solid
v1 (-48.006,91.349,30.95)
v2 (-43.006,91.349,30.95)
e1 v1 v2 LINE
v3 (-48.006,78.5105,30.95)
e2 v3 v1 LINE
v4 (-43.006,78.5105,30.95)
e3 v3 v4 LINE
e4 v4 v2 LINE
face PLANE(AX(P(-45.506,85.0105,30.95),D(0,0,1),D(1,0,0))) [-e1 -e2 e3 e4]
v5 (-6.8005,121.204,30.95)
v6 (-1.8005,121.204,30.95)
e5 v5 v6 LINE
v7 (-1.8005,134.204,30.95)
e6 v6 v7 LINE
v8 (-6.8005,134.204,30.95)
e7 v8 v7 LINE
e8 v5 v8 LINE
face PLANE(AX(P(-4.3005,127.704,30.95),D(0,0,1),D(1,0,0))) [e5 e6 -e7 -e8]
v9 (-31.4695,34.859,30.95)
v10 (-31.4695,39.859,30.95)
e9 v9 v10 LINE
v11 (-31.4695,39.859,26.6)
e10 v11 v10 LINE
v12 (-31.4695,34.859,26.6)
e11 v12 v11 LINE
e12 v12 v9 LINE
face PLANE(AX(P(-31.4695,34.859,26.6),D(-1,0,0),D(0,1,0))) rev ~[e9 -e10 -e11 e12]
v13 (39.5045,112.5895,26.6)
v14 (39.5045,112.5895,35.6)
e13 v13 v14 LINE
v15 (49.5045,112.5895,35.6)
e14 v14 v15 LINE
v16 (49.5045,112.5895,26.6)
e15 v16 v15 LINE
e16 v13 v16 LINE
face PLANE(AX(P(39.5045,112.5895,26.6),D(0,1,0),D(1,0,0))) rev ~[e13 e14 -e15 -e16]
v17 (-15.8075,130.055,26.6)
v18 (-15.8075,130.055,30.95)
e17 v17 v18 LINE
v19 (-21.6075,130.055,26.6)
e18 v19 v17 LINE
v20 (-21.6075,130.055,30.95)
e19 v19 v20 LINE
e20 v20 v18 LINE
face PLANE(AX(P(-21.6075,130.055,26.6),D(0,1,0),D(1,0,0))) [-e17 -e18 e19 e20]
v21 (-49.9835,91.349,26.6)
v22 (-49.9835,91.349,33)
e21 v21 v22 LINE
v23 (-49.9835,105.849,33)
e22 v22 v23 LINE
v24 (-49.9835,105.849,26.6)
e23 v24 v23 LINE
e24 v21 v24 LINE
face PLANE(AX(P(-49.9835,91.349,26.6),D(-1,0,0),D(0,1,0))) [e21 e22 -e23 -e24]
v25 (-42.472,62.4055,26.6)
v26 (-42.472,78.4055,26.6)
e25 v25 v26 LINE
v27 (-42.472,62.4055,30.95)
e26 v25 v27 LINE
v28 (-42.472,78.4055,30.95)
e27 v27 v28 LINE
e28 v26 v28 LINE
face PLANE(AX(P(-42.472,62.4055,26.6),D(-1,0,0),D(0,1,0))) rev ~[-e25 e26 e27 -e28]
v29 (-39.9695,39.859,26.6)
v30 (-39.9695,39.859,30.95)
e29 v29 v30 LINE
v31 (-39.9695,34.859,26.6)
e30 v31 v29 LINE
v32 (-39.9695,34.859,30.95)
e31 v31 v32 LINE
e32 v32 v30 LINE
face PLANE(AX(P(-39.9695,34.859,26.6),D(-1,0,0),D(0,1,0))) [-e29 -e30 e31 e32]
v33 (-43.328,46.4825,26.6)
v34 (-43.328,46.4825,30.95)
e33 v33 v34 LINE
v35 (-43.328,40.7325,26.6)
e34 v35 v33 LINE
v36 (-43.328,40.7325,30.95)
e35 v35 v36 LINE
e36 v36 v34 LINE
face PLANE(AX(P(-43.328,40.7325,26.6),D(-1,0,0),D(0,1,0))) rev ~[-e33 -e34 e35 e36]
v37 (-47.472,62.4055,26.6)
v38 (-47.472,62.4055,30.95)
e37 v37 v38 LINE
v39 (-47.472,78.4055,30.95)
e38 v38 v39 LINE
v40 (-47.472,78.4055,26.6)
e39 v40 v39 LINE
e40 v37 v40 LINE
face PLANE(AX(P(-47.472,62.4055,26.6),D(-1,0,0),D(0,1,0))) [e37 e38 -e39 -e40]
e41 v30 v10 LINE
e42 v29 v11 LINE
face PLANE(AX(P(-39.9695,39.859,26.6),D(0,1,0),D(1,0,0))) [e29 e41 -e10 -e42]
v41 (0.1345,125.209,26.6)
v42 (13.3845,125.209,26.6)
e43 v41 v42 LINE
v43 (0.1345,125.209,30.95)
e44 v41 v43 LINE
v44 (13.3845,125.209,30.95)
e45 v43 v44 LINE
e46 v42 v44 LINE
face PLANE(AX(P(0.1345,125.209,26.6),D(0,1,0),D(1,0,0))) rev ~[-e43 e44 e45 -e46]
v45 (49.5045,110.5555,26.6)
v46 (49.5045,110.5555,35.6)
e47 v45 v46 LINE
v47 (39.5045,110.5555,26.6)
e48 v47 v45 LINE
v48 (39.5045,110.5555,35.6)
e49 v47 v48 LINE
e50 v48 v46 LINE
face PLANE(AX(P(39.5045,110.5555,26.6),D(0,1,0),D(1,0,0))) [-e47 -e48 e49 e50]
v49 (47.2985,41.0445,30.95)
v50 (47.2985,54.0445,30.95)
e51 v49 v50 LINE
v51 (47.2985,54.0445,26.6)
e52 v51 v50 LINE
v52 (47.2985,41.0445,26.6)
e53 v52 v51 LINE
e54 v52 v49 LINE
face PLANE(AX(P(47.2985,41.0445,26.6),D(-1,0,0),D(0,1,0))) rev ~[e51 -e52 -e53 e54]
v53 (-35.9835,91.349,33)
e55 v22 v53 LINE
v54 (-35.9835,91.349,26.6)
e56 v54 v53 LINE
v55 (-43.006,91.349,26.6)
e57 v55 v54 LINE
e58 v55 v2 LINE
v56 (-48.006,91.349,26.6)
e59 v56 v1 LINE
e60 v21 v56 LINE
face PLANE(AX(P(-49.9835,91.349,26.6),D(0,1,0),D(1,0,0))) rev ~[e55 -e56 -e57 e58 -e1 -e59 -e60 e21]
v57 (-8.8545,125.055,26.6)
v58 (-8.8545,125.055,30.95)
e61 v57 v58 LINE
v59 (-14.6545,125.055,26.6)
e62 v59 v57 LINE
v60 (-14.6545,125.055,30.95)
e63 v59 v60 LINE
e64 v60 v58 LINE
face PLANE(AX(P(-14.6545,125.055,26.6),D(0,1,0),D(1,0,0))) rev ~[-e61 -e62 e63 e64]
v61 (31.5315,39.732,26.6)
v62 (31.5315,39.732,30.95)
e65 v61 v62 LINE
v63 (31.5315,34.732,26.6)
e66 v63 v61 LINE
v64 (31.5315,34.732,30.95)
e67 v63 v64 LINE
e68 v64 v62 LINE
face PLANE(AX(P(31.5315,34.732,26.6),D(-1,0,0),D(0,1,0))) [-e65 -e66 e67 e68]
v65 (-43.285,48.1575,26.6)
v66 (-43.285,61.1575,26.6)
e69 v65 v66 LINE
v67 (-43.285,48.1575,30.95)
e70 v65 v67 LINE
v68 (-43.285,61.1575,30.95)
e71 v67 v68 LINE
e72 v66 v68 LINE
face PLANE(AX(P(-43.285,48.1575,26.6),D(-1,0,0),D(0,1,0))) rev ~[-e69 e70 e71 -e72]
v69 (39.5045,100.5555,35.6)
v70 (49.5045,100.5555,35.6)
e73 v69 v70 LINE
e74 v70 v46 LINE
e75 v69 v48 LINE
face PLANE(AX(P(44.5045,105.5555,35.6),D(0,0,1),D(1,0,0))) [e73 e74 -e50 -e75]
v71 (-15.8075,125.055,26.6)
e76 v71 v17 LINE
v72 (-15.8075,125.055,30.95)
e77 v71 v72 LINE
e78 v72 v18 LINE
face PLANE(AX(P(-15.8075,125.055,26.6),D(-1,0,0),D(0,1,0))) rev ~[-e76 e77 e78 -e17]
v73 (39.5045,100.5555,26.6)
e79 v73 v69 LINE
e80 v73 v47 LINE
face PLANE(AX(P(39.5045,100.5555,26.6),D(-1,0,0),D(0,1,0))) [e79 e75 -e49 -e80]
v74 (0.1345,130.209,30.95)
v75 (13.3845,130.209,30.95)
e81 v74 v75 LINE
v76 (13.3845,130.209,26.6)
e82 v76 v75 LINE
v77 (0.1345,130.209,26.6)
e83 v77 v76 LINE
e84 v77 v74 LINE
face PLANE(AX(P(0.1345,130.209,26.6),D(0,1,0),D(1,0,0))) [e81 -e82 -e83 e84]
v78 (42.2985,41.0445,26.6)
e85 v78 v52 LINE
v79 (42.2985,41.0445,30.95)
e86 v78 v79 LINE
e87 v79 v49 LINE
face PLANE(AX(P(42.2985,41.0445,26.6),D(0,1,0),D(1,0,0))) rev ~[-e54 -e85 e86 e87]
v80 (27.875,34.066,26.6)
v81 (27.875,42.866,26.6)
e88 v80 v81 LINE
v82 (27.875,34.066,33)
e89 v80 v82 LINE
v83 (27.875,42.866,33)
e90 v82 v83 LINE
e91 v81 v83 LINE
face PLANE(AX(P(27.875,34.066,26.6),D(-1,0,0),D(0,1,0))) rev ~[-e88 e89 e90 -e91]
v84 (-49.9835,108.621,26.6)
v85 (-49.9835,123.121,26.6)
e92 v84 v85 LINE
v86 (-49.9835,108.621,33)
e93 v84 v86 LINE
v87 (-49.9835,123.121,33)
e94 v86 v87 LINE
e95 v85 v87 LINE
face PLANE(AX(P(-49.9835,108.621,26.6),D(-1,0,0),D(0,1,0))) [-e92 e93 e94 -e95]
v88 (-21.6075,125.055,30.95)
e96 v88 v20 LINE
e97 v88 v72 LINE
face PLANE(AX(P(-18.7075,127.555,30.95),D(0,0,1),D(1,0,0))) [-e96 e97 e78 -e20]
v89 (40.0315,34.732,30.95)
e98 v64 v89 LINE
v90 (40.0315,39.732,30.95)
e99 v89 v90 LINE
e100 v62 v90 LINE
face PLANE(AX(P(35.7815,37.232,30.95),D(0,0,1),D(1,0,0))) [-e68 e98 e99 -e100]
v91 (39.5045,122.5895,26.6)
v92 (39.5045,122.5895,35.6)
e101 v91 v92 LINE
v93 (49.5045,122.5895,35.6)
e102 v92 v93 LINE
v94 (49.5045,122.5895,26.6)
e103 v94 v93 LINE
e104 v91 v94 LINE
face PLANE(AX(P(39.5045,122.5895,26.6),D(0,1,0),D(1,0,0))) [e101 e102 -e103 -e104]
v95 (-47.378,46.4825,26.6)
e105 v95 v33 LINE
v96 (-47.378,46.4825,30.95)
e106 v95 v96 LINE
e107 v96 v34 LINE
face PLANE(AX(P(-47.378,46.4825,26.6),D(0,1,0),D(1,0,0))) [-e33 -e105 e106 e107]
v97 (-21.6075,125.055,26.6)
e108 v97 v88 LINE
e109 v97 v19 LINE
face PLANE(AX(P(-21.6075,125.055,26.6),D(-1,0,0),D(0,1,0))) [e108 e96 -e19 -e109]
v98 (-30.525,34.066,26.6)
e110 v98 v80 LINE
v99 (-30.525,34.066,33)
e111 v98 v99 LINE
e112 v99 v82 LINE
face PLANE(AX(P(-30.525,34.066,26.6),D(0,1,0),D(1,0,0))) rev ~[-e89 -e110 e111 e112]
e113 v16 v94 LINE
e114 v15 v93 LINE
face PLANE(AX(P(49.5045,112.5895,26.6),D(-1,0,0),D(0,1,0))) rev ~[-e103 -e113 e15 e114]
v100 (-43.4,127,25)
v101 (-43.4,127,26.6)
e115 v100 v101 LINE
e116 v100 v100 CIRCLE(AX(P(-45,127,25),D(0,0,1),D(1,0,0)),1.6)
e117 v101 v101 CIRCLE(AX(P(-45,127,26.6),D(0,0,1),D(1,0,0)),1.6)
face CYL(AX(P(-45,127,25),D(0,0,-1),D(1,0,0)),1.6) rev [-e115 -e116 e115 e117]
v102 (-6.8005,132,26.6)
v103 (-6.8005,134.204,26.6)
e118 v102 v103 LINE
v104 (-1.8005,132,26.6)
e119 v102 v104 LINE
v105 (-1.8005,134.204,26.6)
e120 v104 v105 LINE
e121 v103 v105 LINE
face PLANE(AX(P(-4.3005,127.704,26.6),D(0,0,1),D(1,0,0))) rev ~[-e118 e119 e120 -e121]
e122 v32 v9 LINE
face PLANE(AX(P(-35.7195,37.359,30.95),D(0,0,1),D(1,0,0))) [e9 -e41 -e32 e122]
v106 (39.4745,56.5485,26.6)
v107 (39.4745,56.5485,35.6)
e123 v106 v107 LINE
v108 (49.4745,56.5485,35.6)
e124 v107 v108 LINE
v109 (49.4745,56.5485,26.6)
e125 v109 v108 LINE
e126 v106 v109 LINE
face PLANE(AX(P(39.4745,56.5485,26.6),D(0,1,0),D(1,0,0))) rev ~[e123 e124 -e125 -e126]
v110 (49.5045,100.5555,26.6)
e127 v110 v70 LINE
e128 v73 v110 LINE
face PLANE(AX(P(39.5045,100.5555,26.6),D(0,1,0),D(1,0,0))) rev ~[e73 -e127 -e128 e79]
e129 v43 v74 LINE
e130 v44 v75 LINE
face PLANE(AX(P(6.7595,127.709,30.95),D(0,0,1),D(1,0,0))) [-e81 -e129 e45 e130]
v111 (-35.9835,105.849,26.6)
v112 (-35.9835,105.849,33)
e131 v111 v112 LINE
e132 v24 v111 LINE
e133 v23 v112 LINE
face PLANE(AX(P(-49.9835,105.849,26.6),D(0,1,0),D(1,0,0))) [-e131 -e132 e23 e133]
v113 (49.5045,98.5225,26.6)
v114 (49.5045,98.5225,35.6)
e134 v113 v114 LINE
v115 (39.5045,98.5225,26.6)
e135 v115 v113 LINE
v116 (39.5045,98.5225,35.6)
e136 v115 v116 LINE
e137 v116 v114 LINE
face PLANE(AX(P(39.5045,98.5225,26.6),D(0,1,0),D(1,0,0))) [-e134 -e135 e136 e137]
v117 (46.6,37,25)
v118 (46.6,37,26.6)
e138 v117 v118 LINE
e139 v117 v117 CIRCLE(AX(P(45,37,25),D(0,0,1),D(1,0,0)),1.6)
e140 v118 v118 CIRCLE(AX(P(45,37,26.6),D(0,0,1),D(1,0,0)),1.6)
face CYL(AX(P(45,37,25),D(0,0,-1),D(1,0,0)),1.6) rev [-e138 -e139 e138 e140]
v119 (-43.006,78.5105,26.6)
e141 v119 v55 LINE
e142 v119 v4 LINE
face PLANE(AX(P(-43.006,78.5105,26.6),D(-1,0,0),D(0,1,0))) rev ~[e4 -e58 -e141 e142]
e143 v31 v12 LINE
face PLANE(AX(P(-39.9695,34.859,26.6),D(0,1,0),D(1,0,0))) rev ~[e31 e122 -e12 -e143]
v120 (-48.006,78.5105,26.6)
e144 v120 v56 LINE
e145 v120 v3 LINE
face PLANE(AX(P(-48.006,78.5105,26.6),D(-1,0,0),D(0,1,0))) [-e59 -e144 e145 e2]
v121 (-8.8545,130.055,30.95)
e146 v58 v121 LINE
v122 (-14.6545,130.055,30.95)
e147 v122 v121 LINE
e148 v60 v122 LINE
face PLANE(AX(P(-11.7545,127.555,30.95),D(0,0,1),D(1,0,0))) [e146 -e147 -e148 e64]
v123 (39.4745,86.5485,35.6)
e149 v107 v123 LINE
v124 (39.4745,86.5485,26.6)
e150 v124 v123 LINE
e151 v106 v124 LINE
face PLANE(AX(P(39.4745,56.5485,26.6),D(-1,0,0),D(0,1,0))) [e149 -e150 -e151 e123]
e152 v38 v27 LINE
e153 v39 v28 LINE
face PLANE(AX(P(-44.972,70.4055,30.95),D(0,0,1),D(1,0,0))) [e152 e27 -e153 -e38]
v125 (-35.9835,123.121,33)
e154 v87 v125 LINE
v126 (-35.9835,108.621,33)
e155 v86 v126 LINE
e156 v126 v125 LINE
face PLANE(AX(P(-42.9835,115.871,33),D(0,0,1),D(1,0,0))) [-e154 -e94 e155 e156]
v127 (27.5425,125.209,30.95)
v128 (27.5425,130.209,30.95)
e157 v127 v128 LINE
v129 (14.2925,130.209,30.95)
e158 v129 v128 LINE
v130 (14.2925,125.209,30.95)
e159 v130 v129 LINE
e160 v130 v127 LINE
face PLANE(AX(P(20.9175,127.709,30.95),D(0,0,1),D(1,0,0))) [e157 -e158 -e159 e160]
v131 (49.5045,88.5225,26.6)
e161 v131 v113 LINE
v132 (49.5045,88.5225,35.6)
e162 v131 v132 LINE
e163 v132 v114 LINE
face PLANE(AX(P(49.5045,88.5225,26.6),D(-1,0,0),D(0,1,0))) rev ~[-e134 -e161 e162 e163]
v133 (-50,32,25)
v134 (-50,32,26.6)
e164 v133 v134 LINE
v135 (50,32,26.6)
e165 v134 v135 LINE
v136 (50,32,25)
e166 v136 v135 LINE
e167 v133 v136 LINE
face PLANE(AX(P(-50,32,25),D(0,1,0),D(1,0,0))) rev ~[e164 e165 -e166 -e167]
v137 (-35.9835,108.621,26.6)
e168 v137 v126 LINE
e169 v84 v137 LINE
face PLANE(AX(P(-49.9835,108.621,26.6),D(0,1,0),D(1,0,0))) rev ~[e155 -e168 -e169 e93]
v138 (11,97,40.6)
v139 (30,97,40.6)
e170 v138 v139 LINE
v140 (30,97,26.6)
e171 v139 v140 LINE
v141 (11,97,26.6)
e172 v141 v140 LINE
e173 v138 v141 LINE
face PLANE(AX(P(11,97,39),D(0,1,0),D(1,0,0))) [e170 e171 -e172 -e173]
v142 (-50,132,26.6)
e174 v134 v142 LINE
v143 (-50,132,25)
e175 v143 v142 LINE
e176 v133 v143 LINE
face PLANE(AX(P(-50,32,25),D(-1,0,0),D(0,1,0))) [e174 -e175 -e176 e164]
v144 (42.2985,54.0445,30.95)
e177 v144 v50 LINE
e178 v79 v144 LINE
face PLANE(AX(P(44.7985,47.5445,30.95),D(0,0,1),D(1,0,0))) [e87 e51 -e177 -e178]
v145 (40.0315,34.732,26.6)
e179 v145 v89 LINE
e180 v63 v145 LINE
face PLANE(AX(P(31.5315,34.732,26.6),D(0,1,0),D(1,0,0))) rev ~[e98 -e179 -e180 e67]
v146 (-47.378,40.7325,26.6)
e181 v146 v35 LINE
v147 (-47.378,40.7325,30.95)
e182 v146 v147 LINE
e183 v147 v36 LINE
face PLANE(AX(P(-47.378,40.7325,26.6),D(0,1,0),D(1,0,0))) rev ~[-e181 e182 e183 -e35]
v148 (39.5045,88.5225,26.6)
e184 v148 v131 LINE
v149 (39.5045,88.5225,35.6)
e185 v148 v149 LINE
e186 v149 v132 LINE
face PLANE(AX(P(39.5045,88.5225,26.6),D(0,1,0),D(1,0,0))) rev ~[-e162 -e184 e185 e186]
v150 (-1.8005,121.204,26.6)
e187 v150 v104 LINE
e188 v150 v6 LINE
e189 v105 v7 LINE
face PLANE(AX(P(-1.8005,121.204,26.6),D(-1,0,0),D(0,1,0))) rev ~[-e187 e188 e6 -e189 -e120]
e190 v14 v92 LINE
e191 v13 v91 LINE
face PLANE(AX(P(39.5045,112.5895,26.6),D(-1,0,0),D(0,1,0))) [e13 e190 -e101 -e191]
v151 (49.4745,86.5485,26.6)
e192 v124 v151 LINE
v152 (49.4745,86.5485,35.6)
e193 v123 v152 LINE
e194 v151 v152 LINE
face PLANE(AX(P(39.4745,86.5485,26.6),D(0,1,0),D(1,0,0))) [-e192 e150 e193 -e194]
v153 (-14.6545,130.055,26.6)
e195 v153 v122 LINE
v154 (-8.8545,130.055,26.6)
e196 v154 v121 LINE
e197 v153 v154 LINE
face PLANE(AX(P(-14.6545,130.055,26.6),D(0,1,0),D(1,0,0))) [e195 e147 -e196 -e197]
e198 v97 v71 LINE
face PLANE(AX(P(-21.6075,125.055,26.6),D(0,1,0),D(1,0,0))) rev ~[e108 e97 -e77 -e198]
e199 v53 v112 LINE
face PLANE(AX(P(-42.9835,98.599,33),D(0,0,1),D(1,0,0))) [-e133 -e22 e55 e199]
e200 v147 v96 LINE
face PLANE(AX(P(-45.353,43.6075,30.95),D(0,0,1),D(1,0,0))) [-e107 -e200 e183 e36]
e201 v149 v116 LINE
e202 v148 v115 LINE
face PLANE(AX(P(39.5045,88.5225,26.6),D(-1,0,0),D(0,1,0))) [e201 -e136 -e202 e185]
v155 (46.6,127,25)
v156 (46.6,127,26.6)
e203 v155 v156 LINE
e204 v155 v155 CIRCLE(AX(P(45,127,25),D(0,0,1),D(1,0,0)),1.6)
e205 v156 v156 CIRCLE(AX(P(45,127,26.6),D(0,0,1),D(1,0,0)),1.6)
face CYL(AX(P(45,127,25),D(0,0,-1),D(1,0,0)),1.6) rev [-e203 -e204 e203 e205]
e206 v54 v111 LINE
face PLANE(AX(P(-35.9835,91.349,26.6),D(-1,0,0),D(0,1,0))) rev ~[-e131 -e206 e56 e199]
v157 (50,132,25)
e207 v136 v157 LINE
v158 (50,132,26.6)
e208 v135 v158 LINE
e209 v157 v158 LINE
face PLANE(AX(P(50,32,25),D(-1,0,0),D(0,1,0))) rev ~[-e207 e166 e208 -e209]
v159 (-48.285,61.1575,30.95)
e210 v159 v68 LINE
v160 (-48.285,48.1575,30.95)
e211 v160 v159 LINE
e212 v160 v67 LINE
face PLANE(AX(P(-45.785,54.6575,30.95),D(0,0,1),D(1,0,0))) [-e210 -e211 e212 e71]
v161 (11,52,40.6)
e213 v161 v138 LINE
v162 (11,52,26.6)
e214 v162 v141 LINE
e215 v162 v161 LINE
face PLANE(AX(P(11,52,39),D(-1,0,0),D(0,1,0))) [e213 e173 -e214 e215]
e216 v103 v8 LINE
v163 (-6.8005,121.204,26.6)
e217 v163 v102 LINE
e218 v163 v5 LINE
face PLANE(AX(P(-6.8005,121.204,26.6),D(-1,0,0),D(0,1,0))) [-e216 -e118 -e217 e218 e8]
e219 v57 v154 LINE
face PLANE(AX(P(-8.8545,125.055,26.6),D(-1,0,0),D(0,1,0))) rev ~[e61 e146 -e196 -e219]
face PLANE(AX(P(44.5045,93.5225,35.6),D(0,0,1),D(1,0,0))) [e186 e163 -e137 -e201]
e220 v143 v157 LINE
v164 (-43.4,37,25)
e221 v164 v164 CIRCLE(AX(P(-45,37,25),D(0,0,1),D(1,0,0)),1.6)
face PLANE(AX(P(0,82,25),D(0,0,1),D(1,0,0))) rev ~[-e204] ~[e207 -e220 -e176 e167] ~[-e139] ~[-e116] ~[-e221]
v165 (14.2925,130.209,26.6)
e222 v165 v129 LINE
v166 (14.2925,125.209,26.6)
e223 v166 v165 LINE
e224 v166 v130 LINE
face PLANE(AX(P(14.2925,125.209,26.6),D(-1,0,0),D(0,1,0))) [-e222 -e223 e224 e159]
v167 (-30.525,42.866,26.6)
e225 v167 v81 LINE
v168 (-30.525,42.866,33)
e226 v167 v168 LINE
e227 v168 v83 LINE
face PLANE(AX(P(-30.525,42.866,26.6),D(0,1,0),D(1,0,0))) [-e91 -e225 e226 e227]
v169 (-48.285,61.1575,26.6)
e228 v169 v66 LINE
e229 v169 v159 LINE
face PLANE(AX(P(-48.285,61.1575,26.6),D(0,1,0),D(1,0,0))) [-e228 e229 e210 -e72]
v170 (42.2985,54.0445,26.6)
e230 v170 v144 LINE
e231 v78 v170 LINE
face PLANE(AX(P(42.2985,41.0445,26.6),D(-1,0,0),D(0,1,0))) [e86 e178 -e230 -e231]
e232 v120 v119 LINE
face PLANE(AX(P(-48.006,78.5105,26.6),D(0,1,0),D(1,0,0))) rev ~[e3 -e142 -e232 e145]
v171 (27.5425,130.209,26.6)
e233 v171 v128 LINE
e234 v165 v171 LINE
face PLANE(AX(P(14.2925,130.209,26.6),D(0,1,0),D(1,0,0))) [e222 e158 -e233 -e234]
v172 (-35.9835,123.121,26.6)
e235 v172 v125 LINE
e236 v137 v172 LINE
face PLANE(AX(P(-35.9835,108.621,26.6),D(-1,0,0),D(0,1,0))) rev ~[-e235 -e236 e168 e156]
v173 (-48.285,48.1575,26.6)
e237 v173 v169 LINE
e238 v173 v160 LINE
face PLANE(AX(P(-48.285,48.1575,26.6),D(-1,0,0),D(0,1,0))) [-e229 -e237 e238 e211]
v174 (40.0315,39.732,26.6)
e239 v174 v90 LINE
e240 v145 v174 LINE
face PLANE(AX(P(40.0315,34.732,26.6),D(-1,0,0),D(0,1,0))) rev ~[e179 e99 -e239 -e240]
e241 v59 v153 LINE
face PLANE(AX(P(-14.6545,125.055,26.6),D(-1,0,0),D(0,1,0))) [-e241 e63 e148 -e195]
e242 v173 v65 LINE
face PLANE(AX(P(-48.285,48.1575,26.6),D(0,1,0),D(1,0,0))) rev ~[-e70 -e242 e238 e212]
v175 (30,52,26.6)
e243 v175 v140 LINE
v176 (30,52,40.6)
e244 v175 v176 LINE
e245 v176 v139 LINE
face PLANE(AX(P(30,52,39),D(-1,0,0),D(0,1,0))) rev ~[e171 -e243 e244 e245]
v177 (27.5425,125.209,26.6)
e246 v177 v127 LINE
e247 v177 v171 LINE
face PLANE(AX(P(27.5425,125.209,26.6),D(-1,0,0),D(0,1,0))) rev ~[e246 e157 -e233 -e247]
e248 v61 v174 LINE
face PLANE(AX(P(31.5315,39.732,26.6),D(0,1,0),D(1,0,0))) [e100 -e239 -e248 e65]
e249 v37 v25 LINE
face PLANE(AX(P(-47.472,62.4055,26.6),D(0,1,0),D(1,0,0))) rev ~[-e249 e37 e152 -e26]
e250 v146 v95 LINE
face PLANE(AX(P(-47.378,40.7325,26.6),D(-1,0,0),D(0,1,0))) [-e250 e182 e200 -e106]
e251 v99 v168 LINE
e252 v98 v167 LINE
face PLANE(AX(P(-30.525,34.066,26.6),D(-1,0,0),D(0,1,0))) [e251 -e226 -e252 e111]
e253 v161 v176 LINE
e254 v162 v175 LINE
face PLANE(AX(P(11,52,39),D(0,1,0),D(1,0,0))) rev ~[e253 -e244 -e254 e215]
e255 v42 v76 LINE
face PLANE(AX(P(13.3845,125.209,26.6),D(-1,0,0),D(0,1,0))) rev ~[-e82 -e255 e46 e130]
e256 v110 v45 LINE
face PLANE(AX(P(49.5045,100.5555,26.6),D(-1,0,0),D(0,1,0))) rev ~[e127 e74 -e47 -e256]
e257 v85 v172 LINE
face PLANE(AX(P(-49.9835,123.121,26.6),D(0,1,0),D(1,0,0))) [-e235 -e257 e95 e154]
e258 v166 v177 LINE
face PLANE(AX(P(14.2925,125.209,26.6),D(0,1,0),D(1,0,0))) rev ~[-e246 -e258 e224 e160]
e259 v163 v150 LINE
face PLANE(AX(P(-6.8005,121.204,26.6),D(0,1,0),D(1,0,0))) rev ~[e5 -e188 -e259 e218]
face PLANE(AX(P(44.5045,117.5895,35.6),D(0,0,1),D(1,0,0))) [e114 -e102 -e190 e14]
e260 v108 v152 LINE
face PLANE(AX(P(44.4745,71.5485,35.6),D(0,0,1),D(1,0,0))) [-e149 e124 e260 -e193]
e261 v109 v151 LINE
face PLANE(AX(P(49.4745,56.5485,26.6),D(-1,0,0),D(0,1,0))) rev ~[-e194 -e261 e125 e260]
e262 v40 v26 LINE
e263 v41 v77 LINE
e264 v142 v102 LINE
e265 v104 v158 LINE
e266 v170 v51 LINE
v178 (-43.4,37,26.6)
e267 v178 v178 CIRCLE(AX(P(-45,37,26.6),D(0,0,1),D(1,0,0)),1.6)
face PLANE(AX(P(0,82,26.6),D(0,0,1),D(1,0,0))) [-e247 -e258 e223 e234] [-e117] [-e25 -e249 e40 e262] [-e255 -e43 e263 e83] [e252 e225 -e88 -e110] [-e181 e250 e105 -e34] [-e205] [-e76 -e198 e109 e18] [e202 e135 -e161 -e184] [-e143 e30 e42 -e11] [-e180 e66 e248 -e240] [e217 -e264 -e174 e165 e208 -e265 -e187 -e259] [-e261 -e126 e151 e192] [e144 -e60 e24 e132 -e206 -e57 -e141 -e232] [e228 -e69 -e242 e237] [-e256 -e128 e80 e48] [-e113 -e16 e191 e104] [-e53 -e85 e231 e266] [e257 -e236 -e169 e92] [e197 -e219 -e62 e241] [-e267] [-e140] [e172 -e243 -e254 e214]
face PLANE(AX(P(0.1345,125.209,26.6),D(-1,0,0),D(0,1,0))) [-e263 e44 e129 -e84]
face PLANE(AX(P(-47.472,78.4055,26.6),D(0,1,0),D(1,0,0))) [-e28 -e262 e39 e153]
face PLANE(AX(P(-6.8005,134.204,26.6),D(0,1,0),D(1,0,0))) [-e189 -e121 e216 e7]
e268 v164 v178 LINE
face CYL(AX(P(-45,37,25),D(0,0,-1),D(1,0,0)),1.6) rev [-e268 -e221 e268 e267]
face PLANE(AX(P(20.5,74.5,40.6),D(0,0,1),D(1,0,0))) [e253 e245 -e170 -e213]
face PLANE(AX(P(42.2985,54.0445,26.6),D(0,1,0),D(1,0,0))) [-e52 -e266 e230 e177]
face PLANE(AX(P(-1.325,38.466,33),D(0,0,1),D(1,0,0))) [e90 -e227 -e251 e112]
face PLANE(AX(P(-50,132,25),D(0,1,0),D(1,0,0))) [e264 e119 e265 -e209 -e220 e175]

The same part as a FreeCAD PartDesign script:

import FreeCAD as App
import Part
import Sketcher

V = App.Vector


def add_polygon(sketch, points):
    """Adds a closed chain of lines whose ends are joined by coincident constraints."""
    first, n = sketch.GeometryCount, len(points)
    for a, b in zip(points, points[1:] + points[:1]):
        sketch.addGeometry(Part.LineSegment(App.Vector(*a, 0), App.Vector(*b, 0)), False)
    for i in range(n):
        sketch.addConstraint(Sketcher.Constraint("Coincident", first + i, 2, first + (i + 1) % n, 1))

doc = App.newDocument("Part")
body = doc.addObject("PartDesign::Body", "Body")

# Sketch on XY plane
sketch1 = body.newObject("Sketcher::SketchObject", "Sketch")
sketch1.AttachmentSupport = (doc.getObject("XY_Plane"), [""])
sketch1.MapMode = "FlatFace"
sketch1.AttachmentOffset = App.Placement(V(0, 0, 25), App.Rotation())
add_polygon(sketch1, [(-50, 132), (-50, 32), (50, 32), (50, 132)])  # lines 0-3
sketch1.addGeometry(Part.Circle(V(-45, 37, 0), V(0, 0, 1), 1.6), False)  # 4
sketch1.addGeometry(Part.Circle(V(45, 37, 0), V(0, 0, 1), 1.6), False)  # 5
sketch1.addGeometry(Part.Circle(V(-45, 127, 0), V(0, 0, 1), 1.6), False)  # 6
sketch1.addGeometry(Part.Circle(V(45, 127, 0), V(0, 0, 1), 1.6), False)  # 7
sketch1.addConstraint([
    Sketcher.Constraint("Vertical", 0),
    Sketcher.Constraint("Horizontal", 1),
    Sketcher.Constraint("Vertical", 2),
    Sketcher.Constraint("Horizontal", 3),
    Sketcher.Constraint("Equal", 4, 5),
    Sketcher.Constraint("Equal", 5, 6),
    Sketcher.Constraint("Equal", 6, 7),
    Sketcher.Constraint("Symmetric", 4, 3, 5, 3, -2),
    Sketcher.Constraint("Symmetric", 6, 3, 7, 3, -2),
    Sketcher.Constraint("Vertical", 4, 3, 6, 3),
    Sketcher.Constraint("Equal", 3, 0),
    Sketcher.Constraint("Diameter", 4, 3.2),
    Sketcher.Constraint("DistanceX", 1, 1, 1, 2, 100.0),
    Sketcher.Constraint("DistanceX", 4, 3, -1, 1, 45.0),
    Sketcher.Constraint("DistanceY", -1, 1, 4, 3, 37.0),
    Sketcher.Constraint("DistanceY", -1, 1, 6, 3, 127.0),
    Sketcher.Constraint("DistanceX", 0, 2, -1, 1, 50.0),
    Sketcher.Constraint("DistanceY", -1, 1, 0, 2, 32.0),
])
pad1 = body.newObject("PartDesign::Pad", "Pad")
pad1.Profile = sketch1
pad1.Length = 1.6

# Sketch on XY plane
sketch2 = body.newObject("Sketcher::SketchObject", "Sketch001")
sketch2.AttachmentSupport = (doc.getObject("XY_Plane"), [""])
sketch2.MapMode = "FlatFace"
sketch2.AttachmentOffset = App.Placement(V(0, 0, 26.6), App.Rotation())
add_polygon(sketch2, [(40, 123), (40, 113), (50, 113), (50, 123)])  # lines 0-3
sketch2.addConstraint([
    Sketcher.Constraint("Vertical", 0),
    Sketcher.Constraint("Horizontal", 1),
    Sketcher.Constraint("Vertical", 2),
    Sketcher.Constraint("Horizontal", 3),
    Sketcher.Constraint("Equal", 3, 0),
    Sketcher.Constraint("DistanceX", 1, 1, 1, 2, 10.0),
    Sketcher.Constraint("DistanceX", -1, 1, 0, 2, 39.5045),
    Sketcher.Constraint("DistanceY", -1, 1, 0, 2, 112.5895),
])
pad2 = body.newObject("PartDesign::Pad", "Pad001")
pad2.Profile = sketch2
pad2.Length = 9

# Sketch on XY plane
sketch3 = body.newObject("Sketcher::SketchObject", "Sketch002")
sketch3.AttachmentSupport = (doc.getObject("XY_Plane"), [""])
sketch3.MapMode = "FlatFace"
sketch3.AttachmentOffset = App.Placement(V(0, 0, 26.6), App.Rotation())
add_polygon(sketch3, [(-50, 123), (-50, 109), (-36, 109), (-36, 123)])  # lines 0-3
sketch3.addConstraint([
    Sketcher.Constraint("Vertical", 0),
    Sketcher.Constraint("Horizontal", 1),
    Sketcher.Constraint("Vertical", 2),
    Sketcher.Constraint("Horizontal", 3),
    Sketcher.Constraint("DistanceX", 1, 1, 1, 2, 14.0),
    Sketcher.Constraint("DistanceY", 0, 2, 0, 1, 14.5),
    Sketcher.Constraint("DistanceY", -1, 1, 0, 2, 108.621),
    Sketcher.Constraint("DistanceX", 0, 2, -1, 1, 49.9835),
])
pad3 = body.newObject("PartDesign::Pad", "Pad002")
pad3.Profile = sketch3
pad3.Length = 6.4

# Sketch on XY plane
sketch4 = body.newObject("Sketcher::SketchObject", "Sketch003")
sketch4.AttachmentSupport = (doc.getObject("XY_Plane"), [""])
sketch4.MapMode = "FlatFace"
sketch4.AttachmentOffset = App.Placement(V(0, 0, 26.6), App.Rotation())
add_polygon(sketch4, [(-50, 106), (-50, 91), (-36, 91), (-36, 106)])  # lines 0-3
sketch4.addConstraint([
    Sketcher.Constraint("Vertical", 0),
    Sketcher.Constraint("Horizontal", 1),
    Sketcher.Constraint("Vertical", 2),
    Sketcher.Constraint("Horizontal", 3),
    Sketcher.Constraint("DistanceX", 1, 1, 1, 2, 14.0),
    Sketcher.Constraint("DistanceY", 0, 2, 0, 1, 14.5),
    Sketcher.Constraint("DistanceY", -1, 1, 0, 2, 91.349),
    Sketcher.Constraint("DistanceX", 0, 2, -1, 1, 49.9835),
])
pad4 = body.newObject("PartDesign::Pad", "Pad003")
pad4.Profile = sketch4
pad4.Length = 6.4

# Sketch on XY plane
sketch5 = body.newObject("Sketcher::SketchObject", "Sketch004")
sketch5.AttachmentSupport = (doc.getObject("XY_Plane"), [""])
sketch5.MapMode = "FlatFace"
sketch5.AttachmentOffset = App.Placement(V(0, 0, 26.6), App.Rotation())
add_polygon(sketch5, [(40, 99), (40, 89), (50, 89), (50, 99)])  # lines 0-3
sketch5.addConstraint([
    Sketcher.Constraint("Vertical", 0),
    Sketcher.Constraint("Horizontal", 1),
    Sketcher.Constraint("Vertical", 2),
    Sketcher.Constraint("Horizontal", 3),
    Sketcher.Constraint("Equal", 3, 0),
    Sketcher.Constraint("DistanceX", 1, 1, 1, 2, 10.0),
    Sketcher.Constraint("DistanceX", -1, 1, 0, 2, 39.5045),
    Sketcher.Constraint("DistanceY", -1, 1, 0, 2, 88.5225),
])
pad5 = body.newObject("PartDesign::Pad", "Pad004")
pad5.Profile = sketch5
pad5.Length = 9

# Sketch on XY plane
sketch6 = body.newObject("Sketcher::SketchObject", "Sketch005")
sketch6.AttachmentSupport = (doc.getObject("XY_Plane"), [""])
sketch6.MapMode = "FlatFace"
sketch6.AttachmentOffset = App.Placement(V(0, 0, 26.6), App.Rotation())
add_polygon(sketch6, [(40, 111), (40, 101), (50, 101), (50, 111)])  # lines 0-3
sketch6.addConstraint([
    Sketcher.Constraint("Vertical", 0),
    Sketcher.Constraint("Horizontal", 1),
    Sketcher.Constraint("Vertical", 2),
    Sketcher.Constraint("Horizontal", 3),
    Sketcher.Constraint("Equal", 3, 0),
    Sketcher.Constraint("DistanceX", 1, 1, 1, 2, 10.0),
    Sketcher.Constraint("DistanceX", -1, 1, 0, 2, 39.5045),
    Sketcher.Constraint("DistanceY", -1, 1, 0, 2, 100.5555),
])
pad6 = body.newObject("PartDesign::Pad", "Pad005")
pad6.Profile = sketch6
pad6.Length = 9

# Sketch on XY plane
sketch7 = body.newObject("Sketcher::SketchObject", "Sketch006")
sketch7.AttachmentSupport = (doc.getObject("XY_Plane"), [""])
sketch7.MapMode = "FlatFace"
sketch7.AttachmentOffset = App.Placement(V(0, 0, 26.6), App.Rotation())
add_polygon(sketch7, [(39, 87), (39, 57), (49, 57), (49, 87)])  # lines 0-3
sketch7.addConstraint([
    Sketcher.Constraint("Vertical", 0),
    Sketcher.Constraint("Horizontal", 1),
    Sketcher.Constraint("Vertical", 2),
    Sketcher.Constraint("Horizontal", 3),
    Sketcher.Constraint("DistanceX", 1, 1, 1, 2, 10.0),
    Sketcher.Constraint("DistanceY", 0, 2, 0, 1, 30.0),
    Sketcher.Constraint("DistanceX", -1, 1, 0, 2, 39.4745),
    Sketcher.Constraint("DistanceY", -1, 1, 0, 2, 56.5485),
])
pad7 = body.newObject("PartDesign::Pad", "Pad006")
pad7.Profile = sketch7
pad7.Length = 9

# Sketch on XY plane
sketch8 = body.newObject("Sketcher::SketchObject", "Sketch007")
sketch8.AttachmentSupport = (doc.getObject("XY_Plane"), [""])
sketch8.MapMode = "FlatFace"
sketch8.AttachmentOffset = App.Placement(V(0, 0, 26.6), App.Rotation())
add_polygon(sketch8, [(-22, 130), (-22, 125), (-16, 125), (-16, 130)])  # lines 0-3
sketch8.addConstraint([
    Sketcher.Constraint("Vertical", 0),
    Sketcher.Constraint("Horizontal", 1),
    Sketcher.Constraint("Vertical", 2),
    Sketcher.Constraint("Horizontal", 3),
    Sketcher.Constraint("DistanceY", 0, 2, 0, 1, 5.0),
    Sketcher.Constraint("DistanceX", 1, 1, 1, 2, 5.8),
    Sketcher.Constraint("DistanceY", -1, 1, 0, 2, 125.055),
    Sketcher.Constraint("DistanceX", 0, 2, -1, 1, 21.6075),
])
pad8 = body.newObject("PartDesign::Pad", "Pad007")
pad8.Profile = sketch8
pad8.Length = 4.35

# Sketch on XY plane
sketch9 = body.newObject("Sketcher::SketchObject", "Sketch008")
sketch9.AttachmentSupport = (doc.getObject("XY_Plane"), [""])
sketch9.MapMode = "FlatFace"
sketch9.AttachmentOffset = App.Placement(V(0, 0, 26.6), App.Rotation())
add_polygon(sketch9, [(-15, 130), (-15, 125), (-9, 125), (-9, 130)])  # lines 0-3
sketch9.addConstraint([
    Sketcher.Constraint("Vertical", 0),
    Sketcher.Constraint("Horizontal", 1),
    Sketcher.Constraint("Vertical", 2),
    Sketcher.Constraint("Horizontal", 3),
    Sketcher.Constraint("DistanceY", 0, 2, 0, 1, 5.0),
    Sketcher.Constraint("DistanceX", 1, 1, 1, 2, 5.8),
    Sketcher.Constraint("DistanceY", -1, 1, 0, 2, 125.055),
    Sketcher.Constraint("DistanceX", 0, 2, -1, 1, 14.6545),
])
pad9 = body.newObject("PartDesign::Pad", "Pad008")
pad9.Profile = sketch9
pad9.Length = 4.35

# Sketch on XY plane
sketch10 = body.newObject("Sketcher::SketchObject", "Sketch009")
sketch10.AttachmentSupport = (doc.getObject("XY_Plane"), [""])
sketch10.MapMode = "FlatFace"
sketch10.AttachmentOffset = App.Placement(V(0, 0, 26.6), App.Rotation())
add_polygon(sketch10, [(42, 54), (42, 41), (47, 41), (47, 54)])  # lines 0-3
sketch10.addConstraint([
    Sketcher.Constraint("Vertical", 0),
    Sketcher.Constraint("Horizontal", 1),
    Sketcher.Constraint("Vertical", 2),
    Sketcher.Constraint("Horizontal", 3),
    Sketcher.Constraint("DistanceX", 1, 1, 1, 2, 5.0),
    Sketcher.Constraint("DistanceY", 0, 2, 0, 1, 13.0),
    Sketcher.Constraint("DistanceX", -1, 1, 0, 2, 42.2985),
    Sketcher.Constraint("DistanceY", -1, 1, 0, 2, 41.0445),
])
pad10 = body.newObject("PartDesign::Pad", "Pad009")
pad10.Profile = sketch10
pad10.Length = 4.35

# Sketch on XY plane
sketch11 = body.newObject("Sketcher::SketchObject", "Sketch010")
sketch11.AttachmentSupport = (doc.getObject("XY_Plane"), [""])
sketch11.MapMode = "FlatFace"
sketch11.AttachmentOffset = App.Placement(V(0, 0, 26.6), App.Rotation())
add_polygon(sketch11, [(-47, 78), (-47, 62), (-42, 62), (-42, 78)])  # lines 0-3
sketch11.addConstraint([
    Sketcher.Constraint("Vertical", 0),
    Sketcher.Constraint("Horizontal", 1),
    Sketcher.Constraint("Vertical", 2),
    Sketcher.Constraint("Horizontal", 3),
    Sketcher.Constraint("DistanceX", 1, 1, 1, 2, 5.0),
    Sketcher.Constraint("DistanceY", 0, 2, 0, 1, 16.0),
    Sketcher.Constraint("DistanceX", 0, 2, -1, 1, 47.472),
    Sketcher.Constraint("DistanceY", -1, 1, 0, 2, 62.4055),
])
pad11 = body.newObject("PartDesign::Pad", "Pad010")
pad11.Profile = sketch11
pad11.Length = 4.35

# Sketch on XY plane
sketch12 = body.newObject("Sketcher::SketchObject", "Sketch011")
sketch12.AttachmentSupport = (doc.getObject("XY_Plane"), [""])
sketch12.MapMode = "FlatFace"
sketch12.AttachmentOffset = App.Placement(V(0, 0, 26.6), App.Rotation())
add_polygon(sketch12, [(-48, 61), (-48, 48), (-43, 48), (-43, 61)])  # lines 0-3
sketch12.addConstraint([
    Sketcher.Constraint("Vertical", 0),
    Sketcher.Constraint("Horizontal", 1),
    Sketcher.Constraint("Vertical", 2),
    Sketcher.Constraint("Horizontal", 3),
    Sketcher.Constraint("DistanceX", 1, 1, 1, 2, 5.0),
    Sketcher.Constraint("DistanceY", 0, 2, 0, 1, 13.0),
    Sketcher.Constraint("DistanceX", 0, 2, -1, 1, 48.285),
    Sketcher.Constraint("DistanceY", -1, 1, 0, 2, 48.1575),
])
pad12 = body.newObject("PartDesign::Pad", "Pad011")
pad12.Profile = sketch12
pad12.Length = 4.35

# Sketch on XY plane
sketch13 = body.newObject("Sketcher::SketchObject", "Sketch012")
sketch13.AttachmentSupport = (doc.getObject("XY_Plane"), [""])
sketch13.MapMode = "FlatFace"
sketch13.AttachmentOffset = App.Placement(V(0, 0, 26.6), App.Rotation())
add_polygon(sketch13, [(-48, 92), (-48, 79), (-43, 79), (-43, 92)])  # lines 0-3
sketch13.addConstraint([
    Sketcher.Constraint("Vertical", 0),
    Sketcher.Constraint("Horizontal", 1),
    Sketcher.Constraint("Vertical", 2),
    Sketcher.Constraint("Horizontal", 3),
    Sketcher.Constraint("DistanceX", 1, 1, 1, 2, 5.0),
    Sketcher.Constraint("DistanceY", 0, 2, 0, 1, 13.0),
    Sketcher.Constraint("DistanceX", 0, 2, -1, 1, 48.006),
    Sketcher.Constraint("DistanceY", -1, 1, 0, 2, 78.5105),
])
pad13 = body.newObject("PartDesign::Pad", "Pad012")
pad13.Profile = sketch13
pad13.Length = 4.35

# Sketch on XY plane
sketch14 = body.newObject("Sketcher::SketchObject", "Sketch013")
sketch14.AttachmentSupport = (doc.getObject("XY_Plane"), [""])
sketch14.MapMode = "FlatFace"
sketch14.AttachmentOffset = App.Placement(V(0, 0, 26.6), App.Rotation())
add_polygon(sketch14, [(0, 130), (0, 125), (13, 125), (13, 130)])  # lines 0-3
sketch14.addConstraint([
    Sketcher.Constraint("Vertical", 0),
    Sketcher.Constraint("Horizontal", 1),
    Sketcher.Constraint("Vertical", 2),
    Sketcher.Constraint("Horizontal", 3),
    Sketcher.Constraint("DistanceY", 0, 2, 0, 1, 5.0),
    Sketcher.Constraint("DistanceX", 1, 1, 1, 2, 13.25),
    Sketcher.Constraint("DistanceY", -1, 1, 0, 2, 125.209),
    Sketcher.Constraint("DistanceX", -1, 1, 0, 2, 0.1345),
])
pad14 = body.newObject("PartDesign::Pad", "Pad013")
pad14.Profile = sketch14
pad14.Length = 4.35

# Sketch on XY plane
sketch15 = body.newObject("Sketcher::SketchObject", "Sketch014")
sketch15.AttachmentSupport = (doc.getObject("XY_Plane"), [""])
sketch15.MapMode = "FlatFace"
sketch15.AttachmentOffset = App.Placement(V(0, 0, 26.6), App.Rotation())
add_polygon(sketch15, [(14, 130), (14, 125), (28, 125), (28, 130)])  # lines 0-3
sketch15.addConstraint([
    Sketcher.Constraint("Vertical", 0),
    Sketcher.Constraint("Horizontal", 1),
    Sketcher.Constraint("Vertical", 2),
    Sketcher.Constraint("Horizontal", 3),
    Sketcher.Constraint("DistanceY", 0, 2, 0, 1, 5.0),
    Sketcher.Constraint("DistanceX", 1, 1, 1, 2, 13.25),
    Sketcher.Constraint("DistanceY", -1, 1, 0, 2, 125.209),
    Sketcher.Constraint("DistanceX", -1, 1, 0, 2, 14.2925),
])
pad15 = body.newObject("PartDesign::Pad", "Pad014")
pad15.Profile = sketch15
pad15.Length = 4.35

# Sketch on XY plane
sketch16 = body.newObject("Sketcher::SketchObject", "Sketch015")
sketch16.AttachmentSupport = (doc.getObject("XY_Plane"), [""])
sketch16.MapMode = "FlatFace"
sketch16.AttachmentOffset = App.Placement(V(0, 0, 26.6), App.Rotation())
add_polygon(sketch16, [(-40, 40), (-40, 35), (-31, 35), (-31, 40)])  # lines 0-3
sketch16.addConstraint([
    Sketcher.Constraint("Vertical", 0),
    Sketcher.Constraint("Horizontal", 1),
    Sketcher.Constraint("Vertical", 2),
    Sketcher.Constraint("Horizontal", 3),
    Sketcher.Constraint("DistanceY", 0, 2, 0, 1, 5.0),
    Sketcher.Constraint("DistanceX", 1, 1, 1, 2, 8.5),
    Sketcher.Constraint("DistanceY", -1, 1, 0, 2, 34.859),
    Sketcher.Constraint("DistanceX", 0, 2, -1, 1, 39.9695),
])
pad16 = body.newObject("PartDesign::Pad", "Pad015")
pad16.Profile = sketch16
pad16.Length = 4.35

# Sketch on XY plane
sketch17 = body.newObject("Sketcher::SketchObject", "Sketch016")
sketch17.AttachmentSupport = (doc.getObject("XY_Plane"), [""])
sketch17.MapMode = "FlatFace"
sketch17.AttachmentOffset = App.Placement(V(0, 0, 26.6), App.Rotation())
add_polygon(sketch17, [(-7, 134), (-7, 121), (-2, 121), (-2, 134)])  # lines 0-3
sketch17.addConstraint([
    Sketcher.Constraint("Vertical", 0),
    Sketcher.Constraint("Horizontal", 1),
    Sketcher.Constraint("Vertical", 2),
    Sketcher.Constraint("Horizontal", 3),
    Sketcher.Constraint("DistanceX", 1, 1, 1, 2, 5.0),
    Sketcher.Constraint("DistanceY", 0, 2, 0, 1, 13.0),
    Sketcher.Constraint("DistanceY", -1, 1, 0, 2, 121.204),
    Sketcher.Constraint("DistanceX", 0, 2, -1, 1, 6.8005),
])
pad17 = body.newObject("PartDesign::Pad", "Pad016")
pad17.Profile = sketch17
pad17.Length = 4.35

# Sketch on XY plane
sketch18 = body.newObject("Sketcher::SketchObject", "Sketch017")
sketch18.AttachmentSupport = (doc.getObject("XY_Plane"), [""])
sketch18.MapMode = "FlatFace"
sketch18.AttachmentOffset = App.Placement(V(0, 0, 26.6), App.Rotation())
add_polygon(sketch18, [(32, 40), (32, 35), (40, 35), (40, 40)])  # lines 0-3
sketch18.addConstraint([
    Sketcher.Constraint("Vertical", 0),
    Sketcher.Constraint("Horizontal", 1),
    Sketcher.Constraint("Vertical", 2),
    Sketcher.Constraint("Horizontal", 3),
    Sketcher.Constraint("DistanceY", 0, 2, 0, 1, 5.0),
    Sketcher.Constraint("DistanceX", 1, 1, 1, 2, 8.5),
    Sketcher.Constraint("DistanceY", -1, 1, 0, 2, 34.732),
    Sketcher.Constraint("DistanceX", -1, 1, 0, 2, 31.5315),
])
pad18 = body.newObject("PartDesign::Pad", "Pad017")
pad18.Profile = sketch18
pad18.Length = 4.35

# Sketch on XY plane
sketch19 = body.newObject("Sketcher::SketchObject", "Sketch018")
sketch19.AttachmentSupport = (doc.getObject("XY_Plane"), [""])
sketch19.MapMode = "FlatFace"
sketch19.AttachmentOffset = App.Placement(V(0, 0, 26.6), App.Rotation())
add_polygon(sketch19, [(-31, 43), (-31, 34), (28, 34), (28, 43)])  # lines 0-3
sketch19.addConstraint([
    Sketcher.Constraint("Vertical", 0),
    Sketcher.Constraint("Horizontal", 1),
    Sketcher.Constraint("Vertical", 2),
    Sketcher.Constraint("Horizontal", 3),
    Sketcher.Constraint("DistanceX", 1, 1, 1, 2, 58.4),
    Sketcher.Constraint("DistanceY", 0, 2, 0, 1, 8.8),
    Sketcher.Constraint("DistanceX", 0, 2, -1, 1, 30.525),
    Sketcher.Constraint("DistanceY", -1, 1, 0, 2, 34.066),
])
pad19 = body.newObject("PartDesign::Pad", "Pad018")
pad19.Profile = sketch19
pad19.Length = 6.4

# Sketch on XY plane
sketch20 = body.newObject("Sketcher::SketchObject", "Sketch019")
sketch20.AttachmentSupport = (doc.getObject("XY_Plane"), [""])
sketch20.MapMode = "FlatFace"
sketch20.AttachmentOffset = App.Placement(V(0, 0, 26.6), App.Rotation())
add_polygon(sketch20, [(11, 97), (11, 52), (30, 52), (30, 97)])  # lines 0-3
sketch20.addConstraint([
    Sketcher.Constraint("Vertical", 0),
    Sketcher.Constraint("Horizontal", 1),
    Sketcher.Constraint("Vertical", 2),
    Sketcher.Constraint("Horizontal", 3),
    Sketcher.Constraint("DistanceX", 1, 1, 1, 2, 19.0),
    Sketcher.Constraint("DistanceY", 0, 2, 0, 1, 45.0),
    Sketcher.Constraint("DistanceX", -1, 1, 0, 2, 11.0),
    Sketcher.Constraint("DistanceY", -1, 1, 0, 2, 52.0),
])
pad20 = body.newObject("PartDesign::Pad", "Pad019")
pad20.Profile = sketch20
pad20.Length = 12.4

# Sketch on XY plane
sketch21 = body.newObject("Sketcher::SketchObject", "Sketch020")
sketch21.AttachmentSupport = (doc.getObject("XY_Plane"), [""])
sketch21.MapMode = "FlatFace"
sketch21.AttachmentOffset = App.Placement(V(0, 0, 39), App.Rotation())
add_polygon(sketch21, [(11, 97), (11, 52), (30, 52), (30, 97)])  # lines 0-3
sketch21.addConstraint([
    Sketcher.Constraint("Vertical", 0),
    Sketcher.Constraint("Horizontal", 1),
    Sketcher.Constraint("Vertical", 2),
    Sketcher.Constraint("Horizontal", 3),
    Sketcher.Constraint("DistanceX", 1, 1, 1, 2, 19.0),
    Sketcher.Constraint("DistanceY", 0, 2, 0, 1, 45.0),
    Sketcher.Constraint("DistanceX", -1, 1, 0, 2, 11.0),
    Sketcher.Constraint("DistanceY", -1, 1, 0, 2, 52.0),
])
pad21 = body.newObject("PartDesign::Pad", "Pad020")
pad21.Profile = sketch21
pad21.Length = 1.6

# Sketch on XY plane
sketch22 = body.newObject("Sketcher::SketchObject", "Sketch021")
sketch22.AttachmentSupport = (doc.getObject("XY_Plane"), [""])
sketch22.MapMode = "FlatFace"
sketch22.AttachmentOffset = App.Placement(V(0, 0, 26.6), App.Rotation())
add_polygon(sketch22, [(-47.4, 46.5), (-47.4, 40.7), (-43.3, 40.7), (-43.3, 46.5)])  # lines 0-3
sketch22.addConstraint([
    Sketcher.Constraint("Vertical", 0),
    Sketcher.Constraint("Horizontal", 1),
    Sketcher.Constraint("Vertical", 2),
    Sketcher.Constraint("Horizontal", 3),
    Sketcher.Constraint("DistanceX", 1, 1, 1, 2, 4.05),
    Sketcher.Constraint("DistanceY", 0, 2, 0, 1, 5.75),
    Sketcher.Constraint("DistanceX", 0, 2, -1, 1, 47.378),
    Sketcher.Constraint("DistanceY", -1, 1, 0, 2, 40.7325),
])
pad22 = body.newObject("PartDesign::Pad", "Pad021")
pad22.Profile = sketch22
pad22.Length = 4.35

doc.recompute()
